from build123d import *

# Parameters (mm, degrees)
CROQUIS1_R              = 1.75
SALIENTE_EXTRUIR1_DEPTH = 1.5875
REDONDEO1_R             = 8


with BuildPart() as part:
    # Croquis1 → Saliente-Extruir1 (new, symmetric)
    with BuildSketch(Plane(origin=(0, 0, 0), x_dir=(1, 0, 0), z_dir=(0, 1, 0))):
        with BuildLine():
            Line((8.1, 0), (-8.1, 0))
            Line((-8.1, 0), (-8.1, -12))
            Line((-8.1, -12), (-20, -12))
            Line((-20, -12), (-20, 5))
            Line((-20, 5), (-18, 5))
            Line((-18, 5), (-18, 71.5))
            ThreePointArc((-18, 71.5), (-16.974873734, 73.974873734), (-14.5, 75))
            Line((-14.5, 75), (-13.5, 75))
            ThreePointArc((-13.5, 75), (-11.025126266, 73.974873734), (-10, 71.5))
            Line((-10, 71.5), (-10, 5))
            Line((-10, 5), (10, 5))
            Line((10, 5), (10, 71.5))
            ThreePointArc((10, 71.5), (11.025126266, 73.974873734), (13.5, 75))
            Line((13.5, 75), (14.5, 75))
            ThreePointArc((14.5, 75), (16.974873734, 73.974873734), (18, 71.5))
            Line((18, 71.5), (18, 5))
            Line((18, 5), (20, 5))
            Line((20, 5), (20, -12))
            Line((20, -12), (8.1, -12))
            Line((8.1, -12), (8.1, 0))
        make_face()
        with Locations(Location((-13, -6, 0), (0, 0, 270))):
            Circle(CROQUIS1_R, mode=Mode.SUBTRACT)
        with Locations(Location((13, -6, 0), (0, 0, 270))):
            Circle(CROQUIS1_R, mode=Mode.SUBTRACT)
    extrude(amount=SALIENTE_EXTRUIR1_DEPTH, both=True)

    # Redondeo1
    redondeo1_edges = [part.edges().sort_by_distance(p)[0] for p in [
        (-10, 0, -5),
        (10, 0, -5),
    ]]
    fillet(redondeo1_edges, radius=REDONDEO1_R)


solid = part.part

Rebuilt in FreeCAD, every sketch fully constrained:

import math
import FreeCAD as App
import Part
import Sketcher

V = App.Vector


def edges_at(feature, points):
    """Names of the edges that pass closest to the given points."""
    edges = feature.Shape.Edges
    near = lambda p: min(range(len(edges)), key=lambda i: edges[i].distToShape(Part.Vertex(*p))[0])
    return sorted({f"Edge{near(p) + 1}" for p in points})

doc = App.newDocument("Part")
params = doc.addObject("Spreadsheet::Sheet", "Params")
for row, (alias, value) in enumerate([
    ("sketch1_diameter", "3.5 mm"),
    ("sketch1_radius", "3.5 mm"),
    ("sketch1_width", "2 mm"),
    ("sketch1_width2", "1 mm"),
    ("sketch1_width3", "20 mm"),
    ("pad1_length", "3.175 mm"),
    ("fillet_radius", "8 mm"),
], start=1):
    params.set(f"A{row}", alias)
    params.set(f"B{row}", "=" + value)
    params.setAlias(f"B{row}", alias)

body = doc.addObject("PartDesign::Body", "Body")

# Sketch on XZ plane
sketch1 = body.newObject("Sketcher::SketchObject", "Sketch")
sketch1.AttachmentSupport = (doc.getObject("XZ_Plane"), [""])
sketch1.MapMode = "FlatFace"
sketch1.addGeometry([
    Part.LineSegment(V(-8.1, 0, 0), V(8.1, 0, 0)),  # 0
    Part.LineSegment(V(8.1, 0, 0), V(8.1, 12, 0)),  # 1
    Part.LineSegment(V(8.1, 12, 0), V(20, 12, 0)),  # 2
    Part.LineSegment(V(20, 12, 0), V(20, -5, 0)),  # 3
    Part.LineSegment(V(20, -5, 0), V(18, -5, 0)),  # 4
    Part.LineSegment(V(18, -5, 0), V(18, -71.5, 0)),  # 5
    Part.ArcOfCircle(Part.Circle(V(14.5, -71.5, 0), V(0, 0, 1), 3.5), math.radians(-90), math.radians(0)),  # 6
    Part.LineSegment(V(14.5, -75, 0), V(13.5, -75, 0)),  # 7
    Part.ArcOfCircle(Part.Circle(V(13.5, -71.5, 0), V(0, 0, 1), 3.5), math.radians(-180), math.radians(-90)),  # 8
    Part.LineSegment(V(10, -71.5, 0), V(10, -5, 0)),  # 9
    Part.LineSegment(V(10, -5, 0), V(-10, -5, 0)),  # 10
    Part.LineSegment(V(-10, -5, 0), V(-10, -71.5, 0)),  # 11
    Part.ArcOfCircle(Part.Circle(V(-13.5, -71.5, 0), V(0, 0, 1), 3.5), math.radians(-90), math.radians(0)),  # 12
    Part.LineSegment(V(-13.5, -75, 0), V(-14.5, -75, 0)),  # 13
    Part.ArcOfCircle(Part.Circle(V(-14.5, -71.5, 0), V(0, 0, 1), 3.5), math.radians(-180), math.radians(-90)),  # 14
    Part.LineSegment(V(-18, -71.5, 0), V(-18, -5, 0)),  # 15
    Part.LineSegment(V(-18, -5, 0), V(-20, -5, 0)),  # 16
    Part.LineSegment(V(-20, -5, 0), V(-20, 12, 0)),  # 17
    Part.LineSegment(V(-20, 12, 0), V(-8.1, 12, 0)),  # 18
    Part.LineSegment(V(-8.1, 12, 0), V(-8.1, 0, 0)),  # 19
    Part.Circle(V(13, 6, 0), V(0, 0, 1), 1.75),  # 20
    Part.Circle(V(-13, 6, 0), V(0, 0, 1), 1.75),  # 21
], False)
sketch1.addConstraint([
    Sketcher.Constraint("Coincident", 0, 2, 1, 1),
    Sketcher.Constraint("Coincident", 1, 2, 2, 1),
    Sketcher.Constraint("Coincident", 2, 2, 3, 1),
    Sketcher.Constraint("Coincident", 3, 2, 4, 1),
    Sketcher.Constraint("Coincident", 4, 2, 5, 1),
    Sketcher.Constraint("Tangent", 5, 2, 6, 2),
    Sketcher.Constraint("Tangent", 6, 1, 7, 1),
    Sketcher.Constraint("Tangent", 7, 2, 8, 2),
    Sketcher.Constraint("Tangent", 8, 1, 9, 1),
    Sketcher.Constraint("Coincident", 9, 2, 10, 1),
    Sketcher.Constraint("Coincident", 10, 2, 11, 1),
    Sketcher.Constraint("Tangent", 11, 2, 12, 2),
    Sketcher.Constraint("Tangent", 12, 1, 13, 1),
    Sketcher.Constraint("Tangent", 13, 2, 14, 2),
    Sketcher.Constraint("Tangent", 14, 1, 15, 1),
    Sketcher.Constraint("Coincident", 15, 2, 16, 1),
    Sketcher.Constraint("Coincident", 16, 2, 17, 1),
    Sketcher.Constraint("Coincident", 17, 2, 18, 1),
    Sketcher.Constraint("Coincident", 18, 2, 19, 1),
    Sketcher.Constraint("Coincident", 19, 2, 0, 1),
    Sketcher.Constraint("Horizontal", 0),
    Sketcher.Constraint("Vertical", 1),
    Sketcher.Constraint("Horizontal", 2),
    Sketcher.Constraint("Vertical", 3),
    Sketcher.Constraint("Horizontal", 4),
    Sketcher.Constraint("Vertical", 5),
    Sketcher.Constraint("Horizontal", 7),
    Sketcher.Constraint("Vertical", 9),
    Sketcher.Constraint("Horizontal", 10),
    Sketcher.Constraint("Vertical", 11),
    Sketcher.Constraint("Horizontal", 13),
    Sketcher.Constraint("Vertical", 15),
    Sketcher.Constraint("Horizontal", 16),
    Sketcher.Constraint("Vertical", 17),
    Sketcher.Constraint("Horizontal", 18),
    Sketcher.Constraint("Vertical", 19),
    Sketcher.Constraint("Equal", 6, 8),
    Sketcher.Constraint("Equal", 8, 12),
    Sketcher.Constraint("Equal", 12, 14),
    Sketcher.Constraint("Equal", 20, 21),
    Sketcher.Constraint("Symmetric", 0, 2, 19, 2, -1, 1),
    Sketcher.Constraint("Symmetric", 8, 3, 12, 3, -2),
    Sketcher.Constraint("Symmetric", 20, 3, 21, 3, -2),
    Sketcher.Constraint("Symmetric", 4, 2, 15, 2, -2),
    Sketcher.Constraint("Symmetric", 2, 2, 17, 2, -2),
    Sketcher.Constraint("Horizontal", 4, 2, 9, 2),
    Sketcher.Constraint("Diameter", 20, 3.5),
    Sketcher.Constraint("Radius", 6, 3.5),
    Sketcher.Constraint("DistanceX", 4, 2, 4, 1, 2.0),
    Sketcher.Constraint("DistanceX", 7, 2, 7, 1, 1.0),
    Sketcher.Constraint("DistanceX", 10, 2, 10, 1, 20.0),
    Sketcher.Constraint("DistanceY", 1, 1, 1, 2, 12.0),
    Sketcher.Constraint("DistanceY", 3, 2, 3, 1, 17.0),
    Sketcher.Constraint("DistanceX", 0, 1, 0, 2, 16.2),
    Sketcher.Constraint("DistanceY", 5, 2, 5, 1, 66.5),
    Sketcher.Constraint("DistanceX", -1, 1, 20, 3, 13.0),
    Sketcher.Constraint("DistanceY", -1, 1, 20, 3, 6.0),
])
sketch1.setExpression("Constraints[46]", "Params.sketch1_diameter")
sketch1.setExpression("Constraints[47]", "Params.sketch1_radius")
sketch1.setExpression("Constraints[48]", "Params.sketch1_width")
sketch1.setExpression("Constraints[49]", "Params.sketch1_width2")
sketch1.setExpression("Constraints[50]", "Params.sketch1_width3")
pad1 = body.newObject("PartDesign::Pad", "Pad")
pad1.Profile = sketch1
pad1.setExpression("Length", "Params.pad1_length")
pad1.Midplane = True
doc.recompute()

fillet = body.newObject("PartDesign::Fillet", "Fillet")
fillet.Base = (pad1, edges_at(pad1, [(-10, 0, -5), (10, 0, -5)]))
fillet.setExpression("Radius", "Params.fillet_radius")

doc.recompute()
